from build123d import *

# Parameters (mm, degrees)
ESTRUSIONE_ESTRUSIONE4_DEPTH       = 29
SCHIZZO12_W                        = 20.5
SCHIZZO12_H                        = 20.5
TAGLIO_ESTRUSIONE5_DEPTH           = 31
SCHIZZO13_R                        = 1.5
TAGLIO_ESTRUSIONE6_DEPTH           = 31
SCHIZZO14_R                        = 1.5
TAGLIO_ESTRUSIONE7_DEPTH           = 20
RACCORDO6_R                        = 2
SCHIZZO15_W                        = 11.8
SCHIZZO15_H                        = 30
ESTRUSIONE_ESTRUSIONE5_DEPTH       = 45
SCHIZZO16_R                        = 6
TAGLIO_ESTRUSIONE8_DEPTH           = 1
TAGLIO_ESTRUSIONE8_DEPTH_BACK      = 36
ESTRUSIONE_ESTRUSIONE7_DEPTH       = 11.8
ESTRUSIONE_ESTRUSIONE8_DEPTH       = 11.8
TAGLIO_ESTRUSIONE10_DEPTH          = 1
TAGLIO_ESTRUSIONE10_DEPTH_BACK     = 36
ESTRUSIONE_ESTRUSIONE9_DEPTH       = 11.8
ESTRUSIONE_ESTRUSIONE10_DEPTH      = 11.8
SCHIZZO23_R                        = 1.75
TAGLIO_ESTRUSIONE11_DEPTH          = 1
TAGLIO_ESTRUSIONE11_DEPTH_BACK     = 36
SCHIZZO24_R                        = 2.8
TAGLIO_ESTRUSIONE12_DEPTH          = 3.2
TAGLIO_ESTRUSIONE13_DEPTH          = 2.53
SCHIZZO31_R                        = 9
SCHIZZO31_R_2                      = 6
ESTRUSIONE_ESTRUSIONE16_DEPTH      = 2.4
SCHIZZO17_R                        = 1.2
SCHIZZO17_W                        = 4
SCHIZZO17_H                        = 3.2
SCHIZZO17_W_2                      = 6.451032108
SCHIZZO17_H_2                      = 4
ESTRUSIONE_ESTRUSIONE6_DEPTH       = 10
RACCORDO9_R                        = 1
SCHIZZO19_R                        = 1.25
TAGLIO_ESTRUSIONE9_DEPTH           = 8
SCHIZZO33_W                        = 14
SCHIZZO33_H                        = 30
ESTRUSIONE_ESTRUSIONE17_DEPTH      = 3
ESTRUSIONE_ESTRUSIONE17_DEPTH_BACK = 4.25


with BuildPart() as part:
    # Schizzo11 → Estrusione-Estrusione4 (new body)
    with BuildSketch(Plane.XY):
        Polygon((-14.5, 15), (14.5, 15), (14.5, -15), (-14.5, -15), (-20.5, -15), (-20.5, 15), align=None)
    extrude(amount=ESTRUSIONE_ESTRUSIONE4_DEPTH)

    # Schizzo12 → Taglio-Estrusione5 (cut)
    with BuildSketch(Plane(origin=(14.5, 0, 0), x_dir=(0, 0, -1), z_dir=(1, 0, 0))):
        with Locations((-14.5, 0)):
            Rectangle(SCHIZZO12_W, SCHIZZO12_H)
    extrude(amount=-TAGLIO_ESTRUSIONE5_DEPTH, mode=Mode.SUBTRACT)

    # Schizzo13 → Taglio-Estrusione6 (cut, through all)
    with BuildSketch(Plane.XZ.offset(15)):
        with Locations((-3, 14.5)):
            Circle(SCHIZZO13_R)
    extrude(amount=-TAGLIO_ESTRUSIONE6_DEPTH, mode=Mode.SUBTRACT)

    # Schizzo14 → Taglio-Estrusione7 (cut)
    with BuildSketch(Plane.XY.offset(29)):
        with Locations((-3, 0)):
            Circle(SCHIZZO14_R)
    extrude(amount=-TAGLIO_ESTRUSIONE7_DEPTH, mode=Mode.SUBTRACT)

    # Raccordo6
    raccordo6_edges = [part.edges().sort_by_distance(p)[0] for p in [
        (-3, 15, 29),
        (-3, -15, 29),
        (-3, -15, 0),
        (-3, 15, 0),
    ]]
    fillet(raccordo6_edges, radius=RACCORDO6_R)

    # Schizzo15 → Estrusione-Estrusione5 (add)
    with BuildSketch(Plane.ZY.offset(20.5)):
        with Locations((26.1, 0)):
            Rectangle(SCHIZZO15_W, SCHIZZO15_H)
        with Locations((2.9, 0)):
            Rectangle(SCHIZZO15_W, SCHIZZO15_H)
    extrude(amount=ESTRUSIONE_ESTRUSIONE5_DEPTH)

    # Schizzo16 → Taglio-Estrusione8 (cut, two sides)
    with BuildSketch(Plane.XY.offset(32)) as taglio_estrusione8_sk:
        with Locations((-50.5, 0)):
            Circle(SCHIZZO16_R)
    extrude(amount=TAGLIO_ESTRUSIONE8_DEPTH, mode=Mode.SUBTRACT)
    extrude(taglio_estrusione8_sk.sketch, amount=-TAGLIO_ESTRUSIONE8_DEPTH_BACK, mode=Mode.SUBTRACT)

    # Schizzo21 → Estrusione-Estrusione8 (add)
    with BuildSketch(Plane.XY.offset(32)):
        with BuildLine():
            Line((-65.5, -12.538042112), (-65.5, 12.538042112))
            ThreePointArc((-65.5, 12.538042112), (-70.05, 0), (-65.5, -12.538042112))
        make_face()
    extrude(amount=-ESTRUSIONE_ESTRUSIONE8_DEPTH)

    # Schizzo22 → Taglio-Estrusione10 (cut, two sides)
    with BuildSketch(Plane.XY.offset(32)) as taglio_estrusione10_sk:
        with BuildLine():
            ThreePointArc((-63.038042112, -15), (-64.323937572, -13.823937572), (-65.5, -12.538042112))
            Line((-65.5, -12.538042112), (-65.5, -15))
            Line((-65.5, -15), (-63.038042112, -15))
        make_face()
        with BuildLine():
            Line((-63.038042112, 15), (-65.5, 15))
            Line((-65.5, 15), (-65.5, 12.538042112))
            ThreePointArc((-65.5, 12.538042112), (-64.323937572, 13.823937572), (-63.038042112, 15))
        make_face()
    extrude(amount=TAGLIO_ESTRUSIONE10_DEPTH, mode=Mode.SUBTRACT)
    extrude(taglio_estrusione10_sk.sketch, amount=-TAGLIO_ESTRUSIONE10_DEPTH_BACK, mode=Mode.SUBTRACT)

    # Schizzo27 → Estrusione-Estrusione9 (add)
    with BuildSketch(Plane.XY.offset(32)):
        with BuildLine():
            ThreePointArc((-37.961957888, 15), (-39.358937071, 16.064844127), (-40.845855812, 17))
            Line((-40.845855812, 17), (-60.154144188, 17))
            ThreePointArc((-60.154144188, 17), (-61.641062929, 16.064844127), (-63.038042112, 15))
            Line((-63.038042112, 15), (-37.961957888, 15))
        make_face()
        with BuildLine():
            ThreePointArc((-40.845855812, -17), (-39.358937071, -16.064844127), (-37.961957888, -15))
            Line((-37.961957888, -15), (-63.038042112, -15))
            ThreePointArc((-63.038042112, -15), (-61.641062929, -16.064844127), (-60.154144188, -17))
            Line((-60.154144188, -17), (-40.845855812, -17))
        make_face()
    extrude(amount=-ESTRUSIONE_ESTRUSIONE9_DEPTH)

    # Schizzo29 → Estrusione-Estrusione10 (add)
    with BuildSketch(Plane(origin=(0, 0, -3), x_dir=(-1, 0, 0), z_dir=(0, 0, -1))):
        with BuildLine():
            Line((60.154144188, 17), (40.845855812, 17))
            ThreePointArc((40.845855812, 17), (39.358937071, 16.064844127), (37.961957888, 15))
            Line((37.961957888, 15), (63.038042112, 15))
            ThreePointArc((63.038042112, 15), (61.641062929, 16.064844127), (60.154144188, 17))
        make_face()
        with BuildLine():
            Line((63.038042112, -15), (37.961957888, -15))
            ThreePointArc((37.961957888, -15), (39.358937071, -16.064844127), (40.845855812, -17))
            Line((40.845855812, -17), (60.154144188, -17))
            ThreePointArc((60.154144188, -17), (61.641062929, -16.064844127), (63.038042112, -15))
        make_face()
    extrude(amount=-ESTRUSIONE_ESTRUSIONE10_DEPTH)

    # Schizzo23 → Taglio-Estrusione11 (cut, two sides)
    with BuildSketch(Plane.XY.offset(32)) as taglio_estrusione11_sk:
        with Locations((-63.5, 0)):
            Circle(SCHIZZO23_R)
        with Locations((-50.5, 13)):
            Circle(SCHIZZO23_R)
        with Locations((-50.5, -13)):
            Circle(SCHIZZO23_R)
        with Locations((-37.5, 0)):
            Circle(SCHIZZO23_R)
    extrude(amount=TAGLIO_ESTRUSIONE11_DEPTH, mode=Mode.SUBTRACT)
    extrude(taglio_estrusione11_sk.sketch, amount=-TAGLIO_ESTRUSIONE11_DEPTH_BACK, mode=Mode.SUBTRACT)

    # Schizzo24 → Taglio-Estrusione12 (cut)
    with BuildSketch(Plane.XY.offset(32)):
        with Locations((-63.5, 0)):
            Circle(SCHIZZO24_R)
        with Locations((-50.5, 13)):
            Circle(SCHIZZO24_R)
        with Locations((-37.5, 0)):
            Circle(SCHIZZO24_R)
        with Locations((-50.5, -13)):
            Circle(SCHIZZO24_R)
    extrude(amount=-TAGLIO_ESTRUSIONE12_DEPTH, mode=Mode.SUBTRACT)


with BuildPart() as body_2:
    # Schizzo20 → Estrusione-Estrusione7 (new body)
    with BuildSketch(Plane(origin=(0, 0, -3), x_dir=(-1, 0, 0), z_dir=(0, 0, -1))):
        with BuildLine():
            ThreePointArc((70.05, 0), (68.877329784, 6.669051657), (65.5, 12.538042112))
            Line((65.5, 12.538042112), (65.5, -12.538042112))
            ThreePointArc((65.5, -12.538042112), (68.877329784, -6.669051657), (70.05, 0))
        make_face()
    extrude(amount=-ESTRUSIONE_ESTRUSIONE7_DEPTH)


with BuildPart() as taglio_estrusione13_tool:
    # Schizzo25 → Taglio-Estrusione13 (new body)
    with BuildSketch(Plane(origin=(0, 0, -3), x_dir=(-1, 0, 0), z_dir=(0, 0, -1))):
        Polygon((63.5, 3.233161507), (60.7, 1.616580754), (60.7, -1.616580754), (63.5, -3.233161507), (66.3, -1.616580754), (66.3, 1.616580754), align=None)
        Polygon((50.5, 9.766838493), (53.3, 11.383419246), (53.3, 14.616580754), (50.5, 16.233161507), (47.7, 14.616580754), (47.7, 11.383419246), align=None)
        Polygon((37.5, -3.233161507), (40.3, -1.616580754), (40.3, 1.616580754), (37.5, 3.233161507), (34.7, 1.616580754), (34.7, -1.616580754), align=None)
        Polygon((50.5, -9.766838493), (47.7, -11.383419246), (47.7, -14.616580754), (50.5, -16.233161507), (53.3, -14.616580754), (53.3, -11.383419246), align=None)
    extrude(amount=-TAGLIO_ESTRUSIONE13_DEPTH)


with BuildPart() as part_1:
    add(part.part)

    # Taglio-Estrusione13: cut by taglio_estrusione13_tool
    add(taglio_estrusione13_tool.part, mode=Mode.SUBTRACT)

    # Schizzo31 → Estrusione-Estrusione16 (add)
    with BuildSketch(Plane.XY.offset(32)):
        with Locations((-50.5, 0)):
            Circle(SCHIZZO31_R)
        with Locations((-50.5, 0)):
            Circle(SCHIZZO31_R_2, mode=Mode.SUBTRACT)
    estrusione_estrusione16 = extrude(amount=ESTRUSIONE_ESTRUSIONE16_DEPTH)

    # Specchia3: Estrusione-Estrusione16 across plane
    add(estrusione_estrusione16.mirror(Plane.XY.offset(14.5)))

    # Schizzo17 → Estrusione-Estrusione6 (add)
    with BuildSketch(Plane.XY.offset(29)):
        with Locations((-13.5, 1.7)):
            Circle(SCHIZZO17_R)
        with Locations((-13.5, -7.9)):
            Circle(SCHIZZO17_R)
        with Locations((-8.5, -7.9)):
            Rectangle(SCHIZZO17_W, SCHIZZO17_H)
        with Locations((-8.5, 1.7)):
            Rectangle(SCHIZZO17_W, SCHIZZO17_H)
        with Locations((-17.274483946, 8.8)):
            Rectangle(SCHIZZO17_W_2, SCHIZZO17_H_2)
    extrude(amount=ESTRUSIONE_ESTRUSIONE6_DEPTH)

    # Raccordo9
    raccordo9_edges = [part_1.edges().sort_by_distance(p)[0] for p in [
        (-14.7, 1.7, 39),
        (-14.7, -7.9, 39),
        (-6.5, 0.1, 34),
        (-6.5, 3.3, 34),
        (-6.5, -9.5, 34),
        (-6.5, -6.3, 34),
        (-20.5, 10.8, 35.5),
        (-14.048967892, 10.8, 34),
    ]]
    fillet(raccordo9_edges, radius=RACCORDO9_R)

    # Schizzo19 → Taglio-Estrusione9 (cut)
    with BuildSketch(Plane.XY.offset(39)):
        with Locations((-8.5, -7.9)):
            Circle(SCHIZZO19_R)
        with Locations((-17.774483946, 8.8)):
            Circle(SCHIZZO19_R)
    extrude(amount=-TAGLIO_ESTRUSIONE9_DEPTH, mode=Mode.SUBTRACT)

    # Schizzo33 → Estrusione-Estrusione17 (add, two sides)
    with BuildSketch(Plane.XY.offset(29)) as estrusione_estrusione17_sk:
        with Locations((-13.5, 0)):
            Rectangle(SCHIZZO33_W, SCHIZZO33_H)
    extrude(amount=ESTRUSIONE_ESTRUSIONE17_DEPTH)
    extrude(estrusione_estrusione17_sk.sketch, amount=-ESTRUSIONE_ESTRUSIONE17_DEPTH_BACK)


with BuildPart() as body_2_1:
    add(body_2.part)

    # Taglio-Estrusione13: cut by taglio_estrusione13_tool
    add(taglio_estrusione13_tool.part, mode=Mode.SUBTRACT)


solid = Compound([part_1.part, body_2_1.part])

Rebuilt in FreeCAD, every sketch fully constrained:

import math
import FreeCAD as App
import Part
import Sketcher
Q = App.Units.Quantity


def edges_at(feature, points):
    """Names of the edges that pass closest to the given points."""
    edges = feature.Shape.Edges
    near = lambda p: min(range(len(edges)), key=lambda i: edges[i].distToShape(Part.Vertex(*p))[0])
    return sorted({f"Edge{near(p) + 1}" for p in points})


def add_polygon(sketch, points):
    """Adds a closed chain of lines whose ends are joined by coincident constraints."""
    first, n = sketch.GeometryCount, len(points)
    for a, b in zip(points, points[1:] + points[:1]):
        sketch.addGeometry(Part.LineSegment(App.Vector(*a, 0), App.Vector(*b, 0)), False)
    for i in range(n):
        sketch.addConstraint(Sketcher.Constraint("Coincident", first + i, 2, first + (i + 1) % n, 1))

doc = App.newDocument("Part")
body = doc.addObject("PartDesign::Body", "Body")

sketch1 = body.newObject("Sketcher::SketchObject", "Sketch")
sketch1.AttachmentSupport = (doc.getObject("XY_Plane"), [""])
sketch1.MapMode = "FlatFace"
add_polygon(sketch1, [(14, 15), (-20, 15), (-20, -15), (14, -15)])
sketch1.addConstraint([
    Sketcher.Constraint("Horizontal", 0),
    Sketcher.Constraint("Vertical", 1),
    Sketcher.Constraint("Horizontal", 2),
    Sketcher.Constraint("Vertical", 3),
    Sketcher.Constraint("DistanceX", 0, 2, 0, 1, Q("35 mm")),
    Sketcher.Constraint("DistanceY", 1, 2, 1, 1, Q("30 mm")),
    Sketcher.Constraint("DistanceY", -1, 1, 0, 2, Q("15 mm")),
    Sketcher.Constraint("DistanceX", 0, 2, -1, 1, Q("20.5 mm")),
])
pad1 = body.newObject("PartDesign::Pad", "Pad")
pad1.Profile = sketch1
pad1.Length = 29

sketch2 = body.newObject("Sketcher::SketchObject", "Sketch001")
sketch2.AttachmentSupport = (doc.getObject("YZ_Plane"), [""])
sketch2.MapMode = "FlatFace"
sketch2.AttachmentOffset = App.Placement(App.Vector(0, 0, 14.5), App.Rotation())
add_polygon(sketch2, [(10, 25), (-10, 25), (-10, 4), (10, 4)])
sketch2.addConstraint([
    Sketcher.Constraint("Horizontal", 0),
    Sketcher.Constraint("Vertical", 1),
    Sketcher.Constraint("Horizontal", 2),
    Sketcher.Constraint("Vertical", 3),
    Sketcher.Constraint("Equal", 2, 1),
    Sketcher.Constraint("DistanceX", 0, 2, 0, 1, Q("20.5 mm")),
    Sketcher.Constraint("DistanceX", 0, 2, -1, 1, Q("10.25 mm")),
    Sketcher.Constraint("DistanceY", -1, 1, 0, 2, Q("24.75 mm")),
])
pocket1 = body.newObject("PartDesign::Pocket", "Pocket")
pocket1.Profile = sketch2
pocket1.Length = 31

sketch3 = body.newObject("Sketcher::SketchObject", "Sketch002")
sketch3.AttachmentSupport = (doc.getObject("XZ_Plane"), [""])
sketch3.MapMode = "FlatFace"
sketch3.AttachmentOffset = App.Placement(App.Vector(0, 0, 15), App.Rotation())
sketch3.addGeometry(Part.Circle(App.Vector(-3, 14.5, 0), App.Vector(0, 0, 1), 1.5), False)
sketch3.addConstraint([
    Sketcher.Constraint("Diameter", 0, Q("3 mm")),
    Sketcher.Constraint("DistanceX", 0, 3, -1, 1, Q("3 mm")),
    Sketcher.Constraint("DistanceY", -1, 1, 0, 3, Q("14.5 mm")),
])
pocket2 = body.newObject("PartDesign::Pocket", "Pocket001")
pocket2.Profile = sketch3
pocket2.Type = "ThroughAll"

sketch4 = body.newObject("Sketcher::SketchObject", "Sketch003")
sketch4.AttachmentSupport = (doc.getObject("XY_Plane"), [""])
sketch4.MapMode = "FlatFace"
sketch4.AttachmentOffset = App.Placement(App.Vector(0, 0, 29), App.Rotation())
sketch4.addGeometry(Part.Circle(App.Vector(-3, 0, 0), App.Vector(0, 0, 1), 1.5), False)
sketch4.addConstraint([
    Sketcher.Constraint("PointOnObject", 0, 3, -1),
    Sketcher.Constraint("Diameter", 0, Q("3 mm")),
    Sketcher.Constraint("DistanceX", 0, 3, -1, 1, Q("3 mm")),
])
pocket3 = body.newObject("PartDesign::Pocket", "Pocket002")
pocket3.Profile = sketch4
pocket3.Length = 20
doc.recompute()

fillet = body.newObject("PartDesign::Fillet", "Fillet")
fillet.Base = (pocket3, edges_at(pocket3, [
    (-3, 15, 29),
    (-3, -15, 29),
    (-3, -15, 0),
    (-3, 15, 0),
]))
fillet.Radius = 2

sketch5 = body.newObject("Sketcher::SketchObject", "Sketch004")
sketch5.AttachmentSupport = (doc.getObject("YZ_Plane"), [""])
sketch5.MapMode = "FlatFace"
sketch5.AttachmentOffset = App.Placement(App.Vector(0, 0, -20.5), App.Rotation())
add_polygon(sketch5, [(15, 20), (-15, 20), (-15, 32), (15, 32)])
add_polygon(sketch5, [(15, -3), (-15, -3), (-15, 9), (15, 9)])
sketch5.addConstraint([
    Sketcher.Constraint("Horizontal", 0),
    Sketcher.Constraint("Vertical", 1),
    Sketcher.Constraint("Horizontal", 2),
    Sketcher.Constraint("Vertical", 3),
    Sketcher.Constraint("Horizontal", 4),
    Sketcher.Constraint("Vertical", 5),
    Sketcher.Constraint("Horizontal", 6),
    Sketcher.Constraint("Vertical", 7),
    Sketcher.Constraint("Vertical", 1, 2, 4, 2),
    Sketcher.Constraint("Vertical", 3, 2, 6, 2),
    Sketcher.Constraint("Equal", 3, 5),
    Sketcher.Constraint("DistanceX", 0, 2, 0, 1, Q("30 mm")),
    Sketcher.Constraint("DistanceY", 1, 1, 1, 2, Q("11.8 mm")),
    Sketcher.Constraint("DistanceX", 0, 2, -1, 1, Q("15 mm")),
    Sketcher.Constraint("DistanceY", -1, 1, 1, 2, Q("32 mm")),
    Sketcher.Constraint("DistanceY", 4, 2, -1, 1, Q("3 mm")),
])
pad2 = body.newObject("PartDesign::Pad", "Pad001")
pad2.Profile = sketch5
pad2.Length = 45
pad2.Reversed = True

sketch6 = body.newObject("Sketcher::SketchObject", "Sketch005")
sketch6.AttachmentSupport = (doc.getObject("XY_Plane"), [""])
sketch6.MapMode = "FlatFace"
sketch6.AttachmentOffset = App.Placement(App.Vector(0, 0, 32), App.Rotation())
sketch6.addGeometry(Part.Circle(App.Vector(-50, 0, 0), App.Vector(0, 0, 1), 6), False)
sketch6.addConstraint([
    Sketcher.Constraint("PointOnObject", 0, 3, -1),
    Sketcher.Constraint("Diameter", 0, Q("12 mm")),
    Sketcher.Constraint("DistanceX", 0, 3, -1, 1, Q("50.5 mm")),
])
pocket4 = body.newObject("PartDesign::Pocket", "Pocket003")
pocket4.Profile = sketch6
pocket4.Type = "ThroughAll"
pocket4.Midplane = True

sketch7 = body.newObject("Sketcher::SketchObject", "Sketch006")
sketch7.AttachmentSupport = (doc.getObject("XY_Plane"), [""])
sketch7.MapMode = "FlatFace"
sketch7.AttachmentOffset = App.Placement(App.Vector(0, 0, 32), App.Rotation())
sketch7.addGeometry([
    Part.LineSegment(App.Vector(-66, -13, 0), App.Vector(-66, 13, 0)),
    Part.ArcOfCircle(Part.Circle(App.Vector(-50, 0, 0), App.Vector(0, 0, 1), 20), math.radians(140), math.radians(220)),
], False)
sketch7.addConstraint([
    Sketcher.Constraint("Coincident", 0, 1, 1, 2),
    Sketcher.Constraint("Coincident", 1, 1, 0, 2),
    Sketcher.Constraint("Vertical", 0),
    Sketcher.Constraint("PointOnObject", 1, 3, -1),
    Sketcher.Constraint("Radius", 1, Q("19.55 mm")),
    Sketcher.Constraint("DistanceX", 0, 1, 1, 3, Q("15 mm")),
    Sketcher.Constraint("DistanceX", 1, 3, -1, 1, Q("50.5 mm")),
])
pad3 = body.newObject("PartDesign::Pad", "Pad002")
pad3.Profile = sketch7
pad3.Length = 11.8
pad3.Reversed = True

sketch8 = body.newObject("Sketcher::SketchObject", "Sketch007")
sketch8.AttachmentSupport = (doc.getObject("XY_Plane"), [""])
sketch8.MapMode = "FlatFace"
sketch8.AttachmentOffset = App.Placement(App.Vector(0, 0, 32), App.Rotation())
sketch8.addGeometry([
    Part.ArcOfCircle(Part.Circle(App.Vector(-50.5, 0, 0), App.Vector(0, 0, 1), 19.6), math.radians(-140.11), math.radians(-129.89)),
    Part.LineSegment(App.Vector(-65.5, -12.5, 0), App.Vector(-65.5, -15, 0)),
    Part.LineSegment(App.Vector(-65.5, -15, 0), App.Vector(-63, -15, 0)),
    Part.LineSegment(App.Vector(-63, 15, 0), App.Vector(-65.5, 15, 0)),
    Part.LineSegment(App.Vector(-65.5, 15, 0), App.Vector(-65.5, 12.5, 0)),
    Part.ArcOfCircle(Part.Circle(App.Vector(-50.5, 0, 0), App.Vector(0, 0, 1), 19.6), math.radians(129.89), math.radians(140.11)),
], False)
sketch8.addConstraint([
    Sketcher.Constraint("Coincident", 0, 1, 1, 1),
    Sketcher.Constraint("Coincident", 1, 2, 2, 1),
    Sketcher.Constraint("Coincident", 2, 2, 0, 2),
    Sketcher.Constraint("Coincident", 3, 2, 4, 1),
    Sketcher.Constraint("Coincident", 4, 2, 5, 2),
    Sketcher.Constraint("Coincident", 5, 1, 3, 1),
    Sketcher.Constraint("Vertical", 1),
    Sketcher.Constraint("Horizontal", 2),
    Sketcher.Constraint("Horizontal", 3),
    Sketcher.Constraint("Vertical", 4),
    Sketcher.Constraint("Coincident", 5, 3, 0, 3),
    Sketcher.Constraint("Equal", 0, 5),
    Sketcher.Constraint("Symmetric", 1, 2, 3, 2, -1),
    Sketcher.Constraint("PointOnObject", 0, 3, -1),
    Sketcher.Constraint("Equal", 3, 1),
    Sketcher.Constraint("Radius", 0, Q("19.55 mm")),
    Sketcher.Constraint("DistanceY", 1, 2, -1, 1, Q("15 mm")),
    Sketcher.Constraint("DistanceX", 0, 3, -1, 1, Q("50.5 mm")),
])
pocket5 = body.newObject("PartDesign::Pocket", "Pocket004")
pocket5.Profile = sketch8
pocket5.Type = "ThroughAll"
pocket5.Midplane = True

sketch9 = body.newObject("Sketcher::SketchObject", "Sketch008")
sketch9.AttachmentSupport = (doc.getObject("XY_Plane"), [""])
sketch9.MapMode = "FlatFace"
sketch9.AttachmentOffset = App.Placement(App.Vector(0, 0, 32), App.Rotation())
sketch9.addGeometry([
    Part.ArcOfCircle(Part.Circle(App.Vector(-50.5, 0, 0), App.Vector(0, 0, 1), 19.5), math.radians(50.11), math.radians(60.41)),
    Part.LineSegment(App.Vector(-40.8, 17, 0), App.Vector(-60.2, 17, 0)),
    Part.ArcOfCircle(Part.Circle(App.Vector(-50.5, 0, 0), App.Vector(0, 0, 1), 19.5), math.radians(119.59), math.radians(129.89)),
    Part.LineSegment(App.Vector(-63, 15, 0), App.Vector(-38, 15, 0)),
    Part.ArcOfCircle(Part.Circle(App.Vector(-50.5, 0, 0), App.Vector(0, 0, 1), 19.5), math.radians(-60.41), math.radians(-50.11)),
    Part.LineSegment(App.Vector(-38, -15, 0), App.Vector(-63, -15, 0)),
    Part.ArcOfCircle(Part.Circle(App.Vector(-50.5, 0, 0), App.Vector(0, 0, 1), 19.5), math.radians(-129.89), math.radians(-119.59)),
    Part.LineSegment(App.Vector(-60.2, -17, 0), App.Vector(-40.8, -17, 0)),
], False)
sketch9.addConstraint([
    Sketcher.Constraint("Coincident", 0, 2, 1, 1),
    Sketcher.Constraint("Coincident", 1, 2, 2, 1),
    Sketcher.Constraint("Coincident", 2, 2, 3, 1),
    Sketcher.Constraint("Coincident", 3, 2, 0, 1),
    Sketcher.Constraint("Coincident", 4, 2, 5, 1),
    Sketcher.Constraint("Coincident", 5, 2, 6, 1),
    Sketcher.Constraint("Coincident", 6, 2, 7, 1),
    Sketcher.Constraint("Coincident", 7, 2, 4, 1),
    Sketcher.Constraint("Horizontal", 1),
    Sketcher.Constraint("Horizontal", 3),
    Sketcher.Constraint("Horizontal", 5),
    Sketcher.Constraint("Horizontal", 7),
    Sketcher.Constraint("Coincident", 2, 3, 0, 3),
    Sketcher.Constraint("Coincident", 4, 3, 0, 3),
    Sketcher.Constraint("Coincident", 6, 3, 0, 3),
    Sketcher.Constraint("Equal", 0, 2),
    Sketcher.Constraint("Equal", 2, 4),
    Sketcher.Constraint("Equal", 4, 6),
    Sketcher.Constraint("Symmetric", 3, 2, 4, 2, -1),
    Sketcher.Constraint("Vertical", 1, 2, 6, 2),
    Sketcher.Constraint("Radius", 0, Q("19.55 mm")),
    Sketcher.Constraint("DistanceY", -1, 1, 0, 2, Q("17 mm")),
    Sketcher.Constraint("DistanceY", -1, 1, 2, 2, Q("15 mm")),
    Sketcher.Constraint("DistanceX", 0, 3, -1, 1, Q("50.5 mm")),
])
pad4 = body.newObject("PartDesign::Pad", "Pad003")
pad4.Profile = sketch9
pad4.Length = 11.8
pad4.Reversed = True

sketch10 = body.newObject("Sketcher::SketchObject", "Sketch009")
sketch10.AttachmentSupport = (doc.getObject("XY_Plane"), [""])
sketch10.MapMode = "FlatFace"
sketch10.AttachmentOffset = App.Placement(App.Vector(0, 0, -3), App.Rotation())
sketch10.addGeometry([
    Part.LineSegment(App.Vector(-60.2, 17, 0), App.Vector(-40.8, 17, 0)),
    Part.ArcOfCircle(Part.Circle(App.Vector(-50.5, 0, 0), App.Vector(0, 0, 1), 19.5), math.radians(50.11), math.radians(60.41)),
    Part.LineSegment(App.Vector(-38, 15, 0), App.Vector(-63, 15, 0)),
    Part.ArcOfCircle(Part.Circle(App.Vector(-50.5, 0, 0), App.Vector(0, 0, 1), 19.5), math.radians(119.59), math.radians(129.89)),
    Part.LineSegment(App.Vector(-63, -15, 0), App.Vector(-38, -15, 0)),
    Part.ArcOfCircle(Part.Circle(App.Vector(-50.5, 0, 0), App.Vector(0, 0, 1), 19.5), math.radians(-60.41), math.radians(-50.11)),
    Part.LineSegment(App.Vector(-40.8, -17, 0), App.Vector(-60.2, -17, 0)),
    Part.ArcOfCircle(Part.Circle(App.Vector(-50.5, 0, 0), App.Vector(0, 0, 1), 19.5), math.radians(-129.89), math.radians(-119.59)),
], False)
sketch10.addConstraint([
    Sketcher.Constraint("Coincident", 0, 2, 1, 2),
    Sketcher.Constraint("Coincident", 1, 1, 2, 1),
    Sketcher.Constraint("Coincident", 2, 2, 3, 2),
    Sketcher.Constraint("Coincident", 3, 1, 0, 1),
    Sketcher.Constraint("Coincident", 4, 2, 5, 2),
    Sketcher.Constraint("Coincident", 5, 1, 6, 1),
    Sketcher.Constraint("Coincident", 6, 2, 7, 2),
    Sketcher.Constraint("Coincident", 7, 1, 4, 1),
    Sketcher.Constraint("Horizontal", 0),
    Sketcher.Constraint("Horizontal", 2),
    Sketcher.Constraint("Horizontal", 4),
    Sketcher.Constraint("Horizontal", 6),
    Sketcher.Constraint("Coincident", 3, 3, 1, 3),
    Sketcher.Constraint("Coincident", 5, 3, 1, 3),
    Sketcher.Constraint("Coincident", 7, 3, 1, 3),
    Sketcher.Constraint("Equal", 1, 3),
    Sketcher.Constraint("Equal", 3, 5),
    Sketcher.Constraint("Equal", 5, 7),
    Sketcher.Constraint("Symmetric", 1, 1, 4, 2, -1),
    Sketcher.Constraint("Vertical", 0, 2, 5, 1),
    Sketcher.Constraint("Radius", 1, Q("19.55 mm")),
    Sketcher.Constraint("DistanceY", -1, 1, 0, 2, Q("17 mm")),
    Sketcher.Constraint("DistanceY", -1, 1, 1, 1, Q("15 mm")),
    Sketcher.Constraint("DistanceX", 1, 3, -1, 1, Q("50.5 mm")),
])
pad5 = body.newObject("PartDesign::Pad", "Pad004")
pad5.Profile = sketch10
pad5.Length = 11.8

sketch11 = body.newObject("Sketcher::SketchObject", "Sketch010")
sketch11.AttachmentSupport = (doc.getObject("XY_Plane"), [""])
sketch11.MapMode = "FlatFace"
sketch11.AttachmentOffset = App.Placement(App.Vector(0, 0, 32), App.Rotation())
sketch11.addGeometry([
    Part.Circle(App.Vector(-63.5, 0, 0), App.Vector(0, 0, 1), 1.8),
    Part.Circle(App.Vector(-50.5, 13, 0), App.Vector(0, 0, 1), 1.8),
    Part.Circle(App.Vector(-50.5, -13, 0), App.Vector(0, 0, 1), 1.8),
    Part.Circle(App.Vector(-37.5, 0, 0), App.Vector(0, 0, 1), 1.8),
], False)
sketch11.addConstraint([
    Sketcher.Constraint("Equal", 0, 1),
    Sketcher.Constraint("Equal", 1, 2),
    Sketcher.Constraint("Equal", 2, 3),
    Sketcher.Constraint("Symmetric", 1, 3, 2, 3, -1),
    Sketcher.Constraint("PointOnObject", 0, 3, -1),
    Sketcher.Constraint("PointOnObject", 3, 3, -1),
    Sketcher.Constraint("Diameter", 0, Q("3.5 mm")),
    Sketcher.Constraint("DistanceY", -1, 1, 1, 3, Q("13 mm")),
    Sketcher.Constraint("DistanceX", 0, 3, 1, 3, Q("13 mm")),
    Sketcher.Constraint("DistanceX", 1, 3, 3, 3, Q("13 mm")),
    Sketcher.Constraint("DistanceX", 0, 3, -1, 1, Q("63.5 mm")),
])
pocket6 = body.newObject("PartDesign::Pocket", "Pocket005")
pocket6.Profile = sketch11
pocket6.Type = "ThroughAll"
pocket6.Midplane = True

sketch12 = body.newObject("Sketcher::SketchObject", "Sketch011")
sketch12.AttachmentSupport = (doc.getObject("XY_Plane"), [""])
sketch12.MapMode = "FlatFace"
sketch12.AttachmentOffset = App.Placement(App.Vector(0, 0, 32), App.Rotation())
sketch12.addGeometry([
    Part.Circle(App.Vector(-63.5, 0, 0), App.Vector(0, 0, 1), 2.8),
    Part.Circle(App.Vector(-50.5, 13, 0), App.Vector(0, 0, 1), 2.8),
    Part.Circle(App.Vector(-37.5, 0, 0), App.Vector(0, 0, 1), 2.8),
    Part.Circle(App.Vector(-50.5, -13, 0), App.Vector(0, 0, 1), 2.8),
], False)
sketch12.addConstraint([
    Sketcher.Constraint("Equal", 0, 1),
    Sketcher.Constraint("Equal", 1, 2),
    Sketcher.Constraint("Equal", 2, 3),
    Sketcher.Constraint("Symmetric", 1, 3, 3, 3, -1),
    Sketcher.Constraint("PointOnObject", 0, 3, -1),
    Sketcher.Constraint("PointOnObject", 2, 3, -1),
    Sketcher.Constraint("Diameter", 0, Q("5.6 mm")),
    Sketcher.Constraint("DistanceY", -1, 1, 1, 3, Q("13 mm")),
    Sketcher.Constraint("DistanceX", 0, 3, 1, 3, Q("13 mm")),
    Sketcher.Constraint("DistanceX", 1, 3, 2, 3, Q("13 mm")),
    Sketcher.Constraint("DistanceX", 0, 3, -1, 1, Q("63.5 mm")),
])
pocket7 = body.newObject("PartDesign::Pocket", "Pocket006")
pocket7.Profile = sketch12
pocket7.Length = 3.2
body2 = doc.addObject("PartDesign::Body", "Body001")

sketch13 = body2.newObject("Sketcher::SketchObject", "Sketch012")
sketch13.AttachmentSupport = (doc.getObject("XY_Plane001"), [""])
sketch13.MapMode = "FlatFace"
sketch13.AttachmentOffset = App.Placement(App.Vector(0, 0, -3), App.Rotation())
sketch13.addGeometry([
    Part.ArcOfCircle(Part.Circle(App.Vector(-50, 0, 0), App.Vector(0, 0, 1), 20), math.radians(140), math.radians(180)),
    Part.LineSegment(App.Vector(-66, 13, 0), App.Vector(-66, -13, 0)),
    Part.ArcOfCircle(Part.Circle(App.Vector(-50, 0, 0), App.Vector(0, 0, 1), 20), math.radians(-180), math.radians(-140)),
], False)
sketch13.addConstraint([
    Sketcher.Constraint("Coincident", 0, 1, 1, 1),
    Sketcher.Constraint("Coincident", 1, 2, 2, 2),
    Sketcher.Constraint("Tangent", 2, 1, 0, 2),
    Sketcher.Constraint("Vertical", 1),
    Sketcher.Constraint("Equal", 0, 2),
    Sketcher.Constraint("PointOnObject", 0, 3, -1),
    Sketcher.Constraint("PointOnObject", 2, 1, -1),
    Sketcher.Constraint("Radius", 0, Q("19.55 mm")),
    Sketcher.Constraint("DistanceX", 0, 1, 2, 3, Q("15 mm")),
    Sketcher.Constraint("DistanceX", 0, 3, -1, 1, Q("50.5 mm")),
])
pad6 = body2.newObject("PartDesign::Pad", "Pad005")
pad6.Profile = sketch13
pad6.Length = 11.8
body3 = doc.addObject("PartDesign::Body", "Body002")
body3.AllowCompound = True

sketch14 = body3.newObject("Sketcher::SketchObject", "Sketch013")
sketch14.AttachmentSupport = (doc.getObject("XY_Plane002"), [""])
sketch14.MapMode = "FlatFace"
sketch14.AttachmentOffset = App.Placement(App.Vector(0, 0, -3), App.Rotation())
add_polygon(sketch14, [(-63.5, 3.2), (-60.7, 1.6), (-60.7, -1.6), (-63.5, -3.2), (-66.3, -1.6), (-66.3, 1.6)])
add_polygon(sketch14, [(-50.5, 9.8), (-53.3, 11.4), (-53.3, 14.6), (-50.5, 16.2), (-47.7, 14.6), (-47.7, 11.4)])
add_polygon(sketch14, [(-37.5, -3.2), (-40.3, -1.6), (-40.3, 1.6), (-37.5, 3.2), (-34.7, 1.6), (-34.7, -1.6)])
add_polygon(sketch14, [(-50.5, -9.8), (-47.7, -11.4), (-47.7, -14.6), (-50.5, -16.2), (-53.3, -14.6), (-53.3, -11.4)])
sketch14.addConstraint([
    Sketcher.Constraint("Vertical", 1),
    Sketcher.Constraint("Vertical", 4),
    Sketcher.Constraint("Vertical", 7),
    Sketcher.Constraint("Vertical", 10),
    Sketcher.Constraint("Vertical", 13),
    Sketcher.Constraint("Vertical", 16),
    Sketcher.Constraint("Vertical", 19),
    Sketcher.Constraint("Vertical", 22),
    Sketcher.Constraint("Symmetric", 2, 2, 5, 2, -1),
    Sketcher.Constraint("Symmetric", 14, 2, 17, 2, -1),
    Sketcher.Constraint("Symmetric", 10, 2, 18, 2, -1),
    Sketcher.Constraint("Symmetric", 8, 2, 20, 2, -1),
    Sketcher.Constraint("Symmetric", 7, 2, 21, 2, -1),
    Sketcher.Constraint("Symmetric", 11, 2, 23, 2, -1),
    Sketcher.Constraint("Parallel", 0, 3),
    Sketcher.Constraint("Parallel", 2, 5),
    Sketcher.Constraint("Parallel", 3, 6),
    Sketcher.Constraint("Parallel", 5, 8),
    Sketcher.Constraint("Parallel", 6, 9),
    Sketcher.Constraint("Parallel", 8, 11),
    Sketcher.Constraint("Parallel", 9, 12),
    Sketcher.Constraint("Parallel", 11, 14),
    Sketcher.Constraint("Parallel", 12, 15),
    Sketcher.Constraint("Parallel", 14, 17),
    Sketcher.Constraint("Parallel", 15, 18),
    Sketcher.Constraint("Parallel", 17, 20),
    Sketcher.Constraint("Parallel", 20, 23),
    Sketcher.Constraint("Horizontal", 1, 2, 3, 2),
    Sketcher.Constraint("Horizontal", 7, 2, 9, 2),
    Sketcher.Constraint("Horizontal", 6, 2, 10, 2),
    Sketcher.Constraint("Horizontal", 3, 2, 12, 2),
    Sketcher.Constraint("Horizontal", 5, 2, 14, 2),
    Sketcher.Constraint("Horizontal", 13, 2, 15, 2),
    Sketcher.Constraint("Equal", 4, 7),
    Sketcher.Constraint("Equal", 5, 6),
    Sketcher.Constraint("Angle", 0, Q("-30 deg")),
    Sketcher.Constraint("DistanceY", 1, 2, 6, 2, Q("13 mm")),
    Sketcher.Constraint("DistanceX", 4, 2, 6, 2, Q("13 mm")),
    Sketcher.Constraint("DistanceX", 6, 2, 12, 2, Q("13 mm")),
    Sketcher.Constraint("DistanceX", 0, 2, -1, 1, Q("60.7 mm")),
    Sketcher.Constraint("DistanceX", 2, 2, -1, 1, Q("63.5 mm")),
    Sketcher.Constraint("DistanceY", 1, 2, 1, 1, Q("3.233162 mm")),
])
pad7 = body3.newObject("PartDesign::Pad", "Pad006")
pad7.Profile = sketch14
pad7.Length = 2.53
doc.recompute()

body4 = doc.addObject("PartDesign::Body", "Body003")
body4.BaseFeature = body3
boolean = body.newObject("PartDesign::Boolean", "Boolean")
boolean.Type = "Cut"
boolean.addObjects([body4])
doc.recompute()

sketch15 = body.newObject("Sketcher::SketchObject", "Sketch014")
sketch15.AttachmentSupport = (doc.getObject("XY_Plane"), [""])
sketch15.MapMode = "FlatFace"
sketch15.AttachmentOffset = App.Placement(App.Vector(0, 0, 32), App.Rotation())
sketch15.addGeometry([
    Part.Circle(App.Vector(-50, 0, 0), App.Vector(0, 0, 1), 9),
    Part.Circle(App.Vector(-50, 0, 0), App.Vector(0, 0, 1), 6),
], False)
sketch15.addConstraint([
    Sketcher.Constraint("Coincident", 1, 3, 0, 3),
    Sketcher.Constraint("PointOnObject", 0, 3, -1),
    Sketcher.Constraint("Diameter", 0, Q("18 mm")),
    Sketcher.Constraint("Diameter", 1, Q("12 mm")),
    Sketcher.Constraint("DistanceX", 0, 3, -1, 1, Q("50.5 mm")),
])
pad8 = body.newObject("PartDesign::Pad", "Pad007")
pad8.Profile = sketch15
pad8.Length = 2.4
doc.recompute()

datumplane = body.newObject("PartDesign::Plane", "DatumPlane")
datumplane.AttachmentSupport = (doc.getObject("XY_Plane"), [""])
datumplane.MapMode = "FlatFace"
datumplane.AttachmentOffset = App.Placement(App.Vector(0, 0, 14.5), App.Rotation())
mirrored = body.newObject("PartDesign::Mirrored", "Mirrored")
mirrored.Originals = [pad8]
mirrored.MirrorPlane = (datumplane, [""])
body.Tip = mirrored

sketch16 = body.newObject("Sketcher::SketchObject", "Sketch015")
sketch16.AttachmentSupport = (doc.getObject("XY_Plane"), [""])
sketch16.MapMode = "FlatFace"
sketch16.AttachmentOffset = App.Placement(App.Vector(0, 0, 29), App.Rotation())
sketch16.addGeometry(Part.Circle(App.Vector(-13.5, 1.7, 0), App.Vector(0, 0, 1), 1.2), False)
sketch16.addGeometry(Part.Circle(App.Vector(-13.5, -7.9, 0), App.Vector(0, 0, 1), 1.2), False)
add_polygon(sketch16, [(-10.5, -6.3), (-10.5, -9.5), (-6.5, -9.5), (-6.5, -6.3)])
add_polygon(sketch16, [(-10.5, 3.3), (-10.5, 0.1), (-6.5, 0.1), (-6.5, 3.3)])
add_polygon(sketch16, [(-20.5, 10.8), (-20.5, 6.8), (-14, 6.8), (-14, 10.8)])
sketch16.addConstraint([
    Sketcher.Constraint("Vertical", 2),
    Sketcher.Constraint("Horizontal", 3),
    Sketcher.Constraint("Vertical", 4),
    Sketcher.Constraint("Horizontal", 5),
    Sketcher.Constraint("Vertical", 6),
    Sketcher.Constraint("Horizontal", 7),
    Sketcher.Constraint("Vertical", 8),
    Sketcher.Constraint("Horizontal", 9),
    Sketcher.Constraint("Vertical", 10),
    Sketcher.Constraint("Horizontal", 11),
    Sketcher.Constraint("Vertical", 12),
    Sketcher.Constraint("Horizontal", 13),
    Sketcher.Constraint("Equal", 0, 1),
    Sketcher.Constraint("Vertical", 0, 3, 1, 3),
    Sketcher.Constraint("Vertical", 5, 2, 6, 2),
    Sketcher.Constraint("Vertical", 4, 2, 7, 2),
    Sketcher.Constraint("Equal", 4, 6),
    Sketcher.Constraint("Equal", 9, 10),
    Sketcher.Constraint("Diameter", 0, Q("2.4 mm")),
    Sketcher.Constraint("DistanceX", 3, 1, 3, 2, Q("4 mm")),
    Sketcher.Constraint("DistanceY", 2, 2, 2, 1, Q("3.2 mm")),
    Sketcher.Constraint("DistanceX", 1, 3, 2, 2, Q("3 mm")),
    Sketcher.Constraint("DistanceY", 4, 2, 0, 3, Q("8 mm")),
    Sketcher.Constraint("DistanceY", 1, 3, 6, 2, Q("8 mm")),
    Sketcher.Constraint("DistanceX", 10, 2, 0, 3, Q("7 mm")),
    Sketcher.Constraint("DistanceX", 0, 3, -1, 1, Q("13.5 mm")),
    Sketcher.Constraint("DistanceY", -1, 1, 0, 3, Q("1.7 mm")),
    Sketcher.Constraint("DistanceY", 1, 3, -1, 1, Q("7.9 mm")),
    Sketcher.Constraint("DistanceY", -1, 1, 10, 2, Q("6.8 mm")),
    Sketcher.Constraint("DistanceX", 11, 1, 11, 2, Q("6.451032 mm")),
])
pad9 = body.newObject("PartDesign::Pad", "Pad008")
pad9.Profile = sketch16
pad9.Length = 10
doc.recompute()

fillet2 = body.newObject("PartDesign::Fillet", "Fillet001")
fillet2.Base = (pad9, edges_at(pad9, [
    (-14.7, 1.7, 39),
    (-14.7, -7.9, 39),
    (-6.5, 0.1, 34),
    (-6.5, 3.3, 34),
    (-6.5, -9.5, 34),
    (-6.5, -6.3, 34),
    (-20.5, 10.8, 35.5),
    (-14.049, 10.8, 34),
]))
fillet2.Radius = 1

sketch17 = body.newObject("Sketcher::SketchObject", "Sketch016")
sketch17.AttachmentSupport = (doc.getObject("XY_Plane"), [""])
sketch17.MapMode = "FlatFace"
sketch17.AttachmentOffset = App.Placement(App.Vector(0, 0, 39), App.Rotation())
sketch17.addGeometry([
    Part.Circle(App.Vector(-8.5, -7.9, 0), App.Vector(0, 0, 1), 1.2),
    Part.Circle(App.Vector(-17.8, 8.8, 0), App.Vector(0, 0, 1), 1.2),
], False)
sketch17.addConstraint([
    Sketcher.Constraint("Equal", 0, 1),
    Sketcher.Constraint("Diameter", 0, Q("2.5 mm")),
    Sketcher.Constraint("DistanceX", 0, 3, -1, 1, Q("8.5 mm")),
    Sketcher.Constraint("DistanceY", 0, 3, -1, 1, Q("7.9 mm")),
    Sketcher.Constraint("DistanceY", -1, 1, 1, 3, Q("8.8 mm")),
    Sketcher.Constraint("DistanceX", 1, 3, -1, 1, Q("17.774484 mm")),
])
pocket8 = body.newObject("PartDesign::Pocket", "Pocket007")
pocket8.Profile = sketch17
pocket8.Length = 8

sketch18 = body.newObject("Sketcher::SketchObject", "Sketch017")
sketch18.AttachmentSupport = (doc.getObject("XY_Plane"), [""])
sketch18.MapMode = "FlatFace"
sketch18.AttachmentOffset = App.Placement(App.Vector(0, 0, 29), App.Rotation())
add_polygon(sketch18, [(-20, 15), (-20, -15), (-6, -15), (-6, 15)])
sketch18.addConstraint([
    Sketcher.Constraint("Vertical", 0),
    Sketcher.Constraint("Horizontal", 1),
    Sketcher.Constraint("Vertical", 2),
    Sketcher.Constraint("Horizontal", 3),
    Sketcher.Constraint("DistanceX", 1, 1, 1, 2, Q("14 mm")),
    Sketcher.Constraint("DistanceY", 0, 2, 0, 1, Q("30 mm")),
    Sketcher.Constraint("DistanceY", 0, 2, -1, 1, Q("15 mm")),
    Sketcher.Constraint("DistanceX", 0, 2, -1, 1, Q("20.5 mm")),
])
pad10 = body.newObject("PartDesign::Pad", "Pad009")
pad10.Profile = sketch18
pad10.Type = "TwoLengths"
pad10.Length = 3
pad10.Length2 = 4.25
doc.recompute()

boolean2 = body2.newObject("PartDesign::Boolean", "Boolean001")
boolean2.Type = "Cut"
boolean2.addObjects([body3])

doc.recompute()
